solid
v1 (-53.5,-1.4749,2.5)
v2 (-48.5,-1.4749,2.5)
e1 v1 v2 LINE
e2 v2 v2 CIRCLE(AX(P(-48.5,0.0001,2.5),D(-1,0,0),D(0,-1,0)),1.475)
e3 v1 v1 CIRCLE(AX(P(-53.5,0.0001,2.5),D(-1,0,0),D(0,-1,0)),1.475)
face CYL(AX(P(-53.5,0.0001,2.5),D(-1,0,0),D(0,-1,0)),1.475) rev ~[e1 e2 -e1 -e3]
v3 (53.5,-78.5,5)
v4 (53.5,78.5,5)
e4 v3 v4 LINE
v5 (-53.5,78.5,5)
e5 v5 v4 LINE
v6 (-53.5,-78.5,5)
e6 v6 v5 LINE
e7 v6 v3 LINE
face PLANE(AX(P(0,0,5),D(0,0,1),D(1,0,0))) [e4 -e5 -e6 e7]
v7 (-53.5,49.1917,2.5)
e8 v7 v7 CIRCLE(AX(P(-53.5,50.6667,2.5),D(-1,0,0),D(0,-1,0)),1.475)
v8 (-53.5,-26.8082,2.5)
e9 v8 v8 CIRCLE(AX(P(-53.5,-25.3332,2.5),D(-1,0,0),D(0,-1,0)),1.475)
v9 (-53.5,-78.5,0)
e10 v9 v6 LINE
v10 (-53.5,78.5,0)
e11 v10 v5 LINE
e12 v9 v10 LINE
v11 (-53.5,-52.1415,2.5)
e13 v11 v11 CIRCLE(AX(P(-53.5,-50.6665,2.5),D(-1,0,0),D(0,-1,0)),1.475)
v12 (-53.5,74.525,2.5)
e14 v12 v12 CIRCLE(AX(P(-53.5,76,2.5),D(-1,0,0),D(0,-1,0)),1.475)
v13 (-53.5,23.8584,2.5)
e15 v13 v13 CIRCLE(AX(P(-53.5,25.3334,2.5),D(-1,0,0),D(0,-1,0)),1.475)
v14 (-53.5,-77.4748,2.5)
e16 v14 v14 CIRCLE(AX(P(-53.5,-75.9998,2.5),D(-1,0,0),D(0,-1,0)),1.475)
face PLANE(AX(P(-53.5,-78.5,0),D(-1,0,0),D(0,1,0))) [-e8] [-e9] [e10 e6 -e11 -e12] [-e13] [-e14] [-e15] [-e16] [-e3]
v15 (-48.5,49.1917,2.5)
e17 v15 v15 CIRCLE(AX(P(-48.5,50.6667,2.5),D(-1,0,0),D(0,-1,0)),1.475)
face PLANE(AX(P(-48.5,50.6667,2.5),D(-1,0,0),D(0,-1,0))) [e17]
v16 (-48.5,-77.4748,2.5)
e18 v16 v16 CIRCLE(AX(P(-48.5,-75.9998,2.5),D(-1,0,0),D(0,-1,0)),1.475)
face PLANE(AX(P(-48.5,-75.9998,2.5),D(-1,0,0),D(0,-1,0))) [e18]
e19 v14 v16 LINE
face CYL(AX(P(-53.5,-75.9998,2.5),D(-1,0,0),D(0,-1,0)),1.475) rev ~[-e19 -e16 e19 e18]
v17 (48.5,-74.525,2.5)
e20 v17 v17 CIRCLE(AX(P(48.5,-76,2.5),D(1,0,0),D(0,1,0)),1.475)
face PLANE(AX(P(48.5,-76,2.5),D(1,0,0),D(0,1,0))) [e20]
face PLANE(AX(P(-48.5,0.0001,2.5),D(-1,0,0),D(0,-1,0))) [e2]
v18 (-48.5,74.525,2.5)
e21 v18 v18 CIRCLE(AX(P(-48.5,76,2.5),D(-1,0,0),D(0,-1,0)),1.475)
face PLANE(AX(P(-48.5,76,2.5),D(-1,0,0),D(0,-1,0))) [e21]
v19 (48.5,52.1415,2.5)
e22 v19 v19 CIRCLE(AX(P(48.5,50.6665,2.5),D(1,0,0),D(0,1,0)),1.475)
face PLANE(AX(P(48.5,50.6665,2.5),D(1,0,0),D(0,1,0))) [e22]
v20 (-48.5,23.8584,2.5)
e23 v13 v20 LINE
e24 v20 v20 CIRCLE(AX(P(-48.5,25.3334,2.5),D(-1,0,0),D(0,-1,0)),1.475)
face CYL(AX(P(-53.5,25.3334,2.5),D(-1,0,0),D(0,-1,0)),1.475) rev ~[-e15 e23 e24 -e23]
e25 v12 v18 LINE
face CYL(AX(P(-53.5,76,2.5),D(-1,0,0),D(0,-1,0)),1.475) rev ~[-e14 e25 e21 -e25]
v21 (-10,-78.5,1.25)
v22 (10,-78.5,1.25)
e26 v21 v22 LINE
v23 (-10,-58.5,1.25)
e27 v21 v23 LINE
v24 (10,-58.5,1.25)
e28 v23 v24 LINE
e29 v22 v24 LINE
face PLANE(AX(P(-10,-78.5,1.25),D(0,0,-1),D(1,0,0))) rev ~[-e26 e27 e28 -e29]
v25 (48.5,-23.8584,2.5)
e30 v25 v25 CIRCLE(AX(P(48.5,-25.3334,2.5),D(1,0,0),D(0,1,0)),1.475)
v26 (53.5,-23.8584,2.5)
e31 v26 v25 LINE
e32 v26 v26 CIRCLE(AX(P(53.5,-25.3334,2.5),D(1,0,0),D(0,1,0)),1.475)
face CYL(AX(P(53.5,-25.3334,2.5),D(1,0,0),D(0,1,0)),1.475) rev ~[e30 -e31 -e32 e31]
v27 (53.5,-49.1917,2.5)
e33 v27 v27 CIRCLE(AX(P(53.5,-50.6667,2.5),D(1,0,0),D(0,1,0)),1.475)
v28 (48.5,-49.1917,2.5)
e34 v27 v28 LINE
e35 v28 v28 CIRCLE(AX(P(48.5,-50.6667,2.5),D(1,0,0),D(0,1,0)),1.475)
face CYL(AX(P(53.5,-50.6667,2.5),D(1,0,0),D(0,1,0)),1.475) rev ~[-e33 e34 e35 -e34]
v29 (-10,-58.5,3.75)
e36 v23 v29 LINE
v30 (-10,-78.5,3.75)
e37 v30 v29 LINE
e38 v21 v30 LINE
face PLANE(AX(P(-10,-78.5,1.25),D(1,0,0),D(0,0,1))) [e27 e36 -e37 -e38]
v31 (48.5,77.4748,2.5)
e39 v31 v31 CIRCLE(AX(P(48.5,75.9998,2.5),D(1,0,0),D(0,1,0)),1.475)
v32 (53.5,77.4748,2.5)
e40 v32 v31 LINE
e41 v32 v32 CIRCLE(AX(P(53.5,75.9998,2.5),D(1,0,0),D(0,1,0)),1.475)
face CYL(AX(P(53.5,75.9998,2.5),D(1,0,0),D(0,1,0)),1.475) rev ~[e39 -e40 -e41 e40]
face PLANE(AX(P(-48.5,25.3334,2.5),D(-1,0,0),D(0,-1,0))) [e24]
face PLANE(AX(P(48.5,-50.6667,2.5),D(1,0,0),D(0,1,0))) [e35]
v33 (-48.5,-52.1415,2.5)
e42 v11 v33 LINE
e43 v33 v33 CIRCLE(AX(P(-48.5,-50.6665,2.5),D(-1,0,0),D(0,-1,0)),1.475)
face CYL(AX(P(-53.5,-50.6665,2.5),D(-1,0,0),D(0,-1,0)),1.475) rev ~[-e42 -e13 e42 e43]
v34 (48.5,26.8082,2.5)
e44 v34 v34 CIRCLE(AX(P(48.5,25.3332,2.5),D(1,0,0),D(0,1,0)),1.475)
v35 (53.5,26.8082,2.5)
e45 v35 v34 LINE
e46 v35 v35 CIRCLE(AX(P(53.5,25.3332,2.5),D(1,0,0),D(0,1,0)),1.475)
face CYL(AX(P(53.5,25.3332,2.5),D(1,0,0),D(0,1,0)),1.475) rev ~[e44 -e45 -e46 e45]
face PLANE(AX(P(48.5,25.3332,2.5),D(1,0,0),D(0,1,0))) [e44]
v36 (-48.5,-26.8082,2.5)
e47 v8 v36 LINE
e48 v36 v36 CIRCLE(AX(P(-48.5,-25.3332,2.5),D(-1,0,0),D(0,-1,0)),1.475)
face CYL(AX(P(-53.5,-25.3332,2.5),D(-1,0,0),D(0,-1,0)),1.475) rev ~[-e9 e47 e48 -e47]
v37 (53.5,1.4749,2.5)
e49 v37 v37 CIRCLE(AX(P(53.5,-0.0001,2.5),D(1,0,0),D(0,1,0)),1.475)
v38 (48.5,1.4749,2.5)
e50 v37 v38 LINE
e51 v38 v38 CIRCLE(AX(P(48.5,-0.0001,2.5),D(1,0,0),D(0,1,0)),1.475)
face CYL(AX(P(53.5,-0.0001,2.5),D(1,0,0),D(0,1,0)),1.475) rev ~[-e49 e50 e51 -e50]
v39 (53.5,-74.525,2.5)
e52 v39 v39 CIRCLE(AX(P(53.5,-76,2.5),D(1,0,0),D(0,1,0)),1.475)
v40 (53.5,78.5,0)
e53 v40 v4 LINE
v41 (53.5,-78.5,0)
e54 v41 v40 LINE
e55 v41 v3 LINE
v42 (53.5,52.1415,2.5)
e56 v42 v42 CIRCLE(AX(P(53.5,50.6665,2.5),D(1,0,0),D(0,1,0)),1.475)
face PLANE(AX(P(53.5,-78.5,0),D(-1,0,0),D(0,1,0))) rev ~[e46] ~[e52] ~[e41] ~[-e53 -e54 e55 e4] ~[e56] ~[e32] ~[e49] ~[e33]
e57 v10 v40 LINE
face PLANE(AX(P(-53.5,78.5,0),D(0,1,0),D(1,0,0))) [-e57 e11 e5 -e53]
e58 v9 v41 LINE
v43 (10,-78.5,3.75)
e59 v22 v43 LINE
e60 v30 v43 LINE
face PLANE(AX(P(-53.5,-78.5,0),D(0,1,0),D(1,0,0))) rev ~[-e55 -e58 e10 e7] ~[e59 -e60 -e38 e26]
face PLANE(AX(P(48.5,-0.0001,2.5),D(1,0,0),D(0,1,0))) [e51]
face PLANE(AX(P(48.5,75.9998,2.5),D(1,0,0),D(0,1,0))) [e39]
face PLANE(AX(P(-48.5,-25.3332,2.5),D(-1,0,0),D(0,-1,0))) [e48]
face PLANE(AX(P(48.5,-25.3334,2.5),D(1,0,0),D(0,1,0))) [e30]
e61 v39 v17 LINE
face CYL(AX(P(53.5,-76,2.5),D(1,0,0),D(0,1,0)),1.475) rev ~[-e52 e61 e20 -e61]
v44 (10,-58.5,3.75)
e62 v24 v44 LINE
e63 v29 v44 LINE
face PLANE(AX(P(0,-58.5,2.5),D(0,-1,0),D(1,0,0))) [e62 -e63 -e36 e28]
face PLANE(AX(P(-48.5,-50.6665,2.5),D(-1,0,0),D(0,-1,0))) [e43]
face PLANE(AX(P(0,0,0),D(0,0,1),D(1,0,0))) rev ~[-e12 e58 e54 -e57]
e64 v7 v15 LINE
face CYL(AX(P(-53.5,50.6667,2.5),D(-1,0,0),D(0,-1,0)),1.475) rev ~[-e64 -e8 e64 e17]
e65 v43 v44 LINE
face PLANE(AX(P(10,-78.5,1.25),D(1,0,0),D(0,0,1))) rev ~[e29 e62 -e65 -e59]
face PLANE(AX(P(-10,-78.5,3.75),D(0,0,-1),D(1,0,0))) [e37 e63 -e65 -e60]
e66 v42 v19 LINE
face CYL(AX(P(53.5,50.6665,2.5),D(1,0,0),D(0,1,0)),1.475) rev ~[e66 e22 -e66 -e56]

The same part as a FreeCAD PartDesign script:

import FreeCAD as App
import Part
import Sketcher

V = App.Vector

doc = App.newDocument("Part")
body = doc.addObject("PartDesign::Body", "Body")

sketch1 = doc.addObject("Sketcher::SketchObject", "Sketch")
body.addObject(sketch1)
sketch1.AttachmentSupport = (doc.XY_Plane, [""])
sketch1.MapMode = "FlatFace"
sketch1.addGeometry([
    Part.LineSegment(V(-54, 78, 0), V(-54, -78, 0)),
    Part.LineSegment(V(-54, -78, 0), V(54, -78, 0)),
    Part.LineSegment(V(54, -78, 0), V(54, 78, 0)),
    Part.LineSegment(V(54, 78, 0), V(-54, 78, 0)),
], False)
sketch1.addConstraint([
    Sketcher.Constraint("Coincident", 0, 2, 1, 1),
    Sketcher.Constraint("Coincident", 1, 2, 2, 1),
    Sketcher.Constraint("Coincident", 2, 2, 3, 1),
    Sketcher.Constraint("Coincident", 3, 2, 0, 1),
    Sketcher.Constraint("Vertical", 0),
    Sketcher.Constraint("Horizontal", 1),
    Sketcher.Constraint("Vertical", 2),
    Sketcher.Constraint("Horizontal", 3),
    Sketcher.Constraint("Symmetric", 0, 2, 2, 2, -1, 1),
    Sketcher.Constraint("DistanceX", 1, 1, 1, 2, 107.0),
    Sketcher.Constraint("DistanceY", 0, 2, 0, 1, 157.0),
])
pad1 = doc.addObject("PartDesign::Pad", "Pad")
body.addObject(pad1)
pad1.Profile = sketch1
pad1.Length = 5

sketch2 = doc.addObject("Sketcher::SketchObject", "Sketch001")
body.addObject(sketch2)
sketch2.AttachmentSupport = (doc.YZ_Plane, [""])
sketch2.MapMode = "FlatFace"
sketch2.AttachmentOffset = App.Placement(V(0, 0, 53.5), App.Rotation())
sketch2.addGeometry([
    Part.Circle(V(-76, 2.5, 0), V(0, 0, 1), 1.5),
    Part.Circle(V(-50.7, 2.5, 0), V(0, 0, 1), 1.5),
    Part.Circle(V(-25.3, 2.5, 0), V(0, 0, 1), 1.5),
    Part.Circle(V(0, 2.5, 0), V(0, 0, 1), 1.5),
    Part.Circle(V(25.3, 2.5, 0), V(0, 0, 1), 1.5),
    Part.Circle(V(50.7, 2.5, 0), V(0, 0, 1), 1.5),
    Part.Circle(V(76, 2.5, 0), V(0, 0, 1), 1.5),
], False)
sketch2.addConstraint([
    Sketcher.Constraint("Equal", 0, 1),
    Sketcher.Constraint("Equal", 1, 2),
    Sketcher.Constraint("Equal", 2, 3),
    Sketcher.Constraint("Equal", 3, 4),
    Sketcher.Constraint("Equal", 4, 5),
    Sketcher.Constraint("Equal", 5, 6),
    Sketcher.Constraint("Horizontal", 0, 3, 1, 3),
    Sketcher.Constraint("Horizontal", 1, 3, 2, 3),
    Sketcher.Constraint("Horizontal", 2, 3, 3, 3),
    Sketcher.Constraint("Horizontal", 3, 3, 4, 3),
    Sketcher.Constraint("Horizontal", 4, 3, 5, 3),
    Sketcher.Constraint("Horizontal", 5, 3, 6, 3),
    Sketcher.Constraint("Diameter", 0, 2.95),
    Sketcher.Constraint("DistanceX", 0, 3, -1, 1, 76.0),
    Sketcher.Constraint("DistanceY", -1, 1, 0, 3, 2.5),
    Sketcher.Constraint("DistanceX", 1, 3, -1, 1, 50.6667),
    Sketcher.Constraint("DistanceX", 2, 3, -1, 1, 25.3334),
    Sketcher.Constraint("DistanceX", 3, 3, -1, 1, 0.0001),
    Sketcher.Constraint("DistanceX", -1, 1, 4, 3, 25.3332),
    Sketcher.Constraint("DistanceX", -1, 1, 5, 3, 50.6665),
    Sketcher.Constraint("DistanceX", -1, 1, 6, 3, 75.9998),
])
pocket1 = doc.addObject("PartDesign::Pocket", "Pocket")
body.addObject(pocket1)
pocket1.Profile = sketch2
pocket1.Length = 5

sketch3 = doc.addObject("Sketcher::SketchObject", "Sketch002")
body.addObject(sketch3)
sketch3.AttachmentSupport = (doc.YZ_Plane, [""])
sketch3.MapMode = "FlatFace"
sketch3.AttachmentOffset = App.Placement(V(0, 0, -53.5), App.Rotation())
sketch3.addGeometry([
    Part.Circle(V(76, 2.5, 0), V(0, 0, 1), 1.5),
    Part.Circle(V(50.7, 2.5, 0), V(0, 0, 1), 1.5),
    Part.Circle(V(25.3, 2.5, 0), V(0, 0, 1), 1.5),
    Part.Circle(V(0, 2.5, 0), V(0, 0, 1), 1.5),
    Part.Circle(V(-25.3, 2.5, 0), V(0, 0, 1), 1.5),
    Part.Circle(V(-50.7, 2.5, 0), V(0, 0, 1), 1.5),
    Part.Circle(V(-76, 2.5, 0), V(0, 0, 1), 1.5),
], False)
sketch3.addConstraint([
    Sketcher.Constraint("Equal", 0, 1),
    Sketcher.Constraint("Equal", 1, 2),
    Sketcher.Constraint("Equal", 2, 3),
    Sketcher.Constraint("Equal", 3, 4),
    Sketcher.Constraint("Equal", 4, 5),
    Sketcher.Constraint("Equal", 5, 6),
    Sketcher.Constraint("Horizontal", 0, 3, 1, 3),
    Sketcher.Constraint("Horizontal", 1, 3, 2, 3),
    Sketcher.Constraint("Horizontal", 2, 3, 3, 3),
    Sketcher.Constraint("Horizontal", 3, 3, 4, 3),
    Sketcher.Constraint("Horizontal", 4, 3, 5, 3),
    Sketcher.Constraint("Horizontal", 5, 3, 6, 3),
    Sketcher.Constraint("Diameter", 0, 2.95),
    Sketcher.Constraint("DistanceX", -1, 1, 0, 3, 76.0),
    Sketcher.Constraint("DistanceY", -1, 1, 0, 3, 2.5),
    Sketcher.Constraint("DistanceX", -1, 1, 1, 3, 50.6667),
    Sketcher.Constraint("DistanceX", -1, 1, 2, 3, 25.3334),
    Sketcher.Constraint("DistanceX", -1, 1, 3, 3, 0.0001),
    Sketcher.Constraint("DistanceX", 4, 3, -1, 1, 25.3332),
    Sketcher.Constraint("DistanceX", 5, 3, -1, 1, 50.6665),
    Sketcher.Constraint("DistanceX", 6, 3, -1, 1, 75.9998),
])
pocket2 = doc.addObject("PartDesign::Pocket", "Pocket001")
body.addObject(pocket2)
pocket2.Profile = sketch3
pocket2.Length = 5
pocket2.Reversed = True

sketch4 = doc.addObject("Sketcher::SketchObject", "Sketch003")
body.addObject(sketch4)
sketch4.AttachmentSupport = (doc.XZ_Plane, [""])
sketch4.MapMode = "FlatFace"
sketch4.AttachmentOffset = App.Placement(V(0, 0, 78.5), App.Rotation())
sketch4.addGeometry([
    Part.LineSegment(V(-10, 3.8, 0), V(-10, 1.2, 0)),
    Part.LineSegment(V(-10, 1.2, 0), V(10, 1.2, 0)),
    Part.LineSegment(V(10, 1.2, 0), V(10, 3.8, 0)),
    Part.LineSegment(V(10, 3.8, 0), V(-10, 3.8, 0)),
], False)
sketch4.addConstraint([
    Sketcher.Constraint("Coincident", 0, 2, 1, 1),
    Sketcher.Constraint("Coincident", 1, 2, 2, 1),
    Sketcher.Constraint("Coincident", 2, 2, 3, 1),
    Sketcher.Constraint("Coincident", 3, 2, 0, 1),
    Sketcher.Constraint("Vertical", 0),
    Sketcher.Constraint("Horizontal", 1),
    Sketcher.Constraint("Vertical", 2),
    Sketcher.Constraint("Horizontal", 3),
    Sketcher.Constraint("DistanceX", 1, 1, 1, 2, 20.0),
    Sketcher.Constraint("DistanceY", 0, 2, 0, 1, 2.5),
    Sketcher.Constraint("DistanceX", 0, 2, -1, 1, 10.0),
    Sketcher.Constraint("DistanceY", -1, 1, 0, 2, 1.25),
])
pocket3 = doc.addObject("PartDesign::Pocket", "Pocket002")
body.addObject(pocket3)
pocket3.Profile = sketch4
pocket3.Length = 20

doc.recompute()
